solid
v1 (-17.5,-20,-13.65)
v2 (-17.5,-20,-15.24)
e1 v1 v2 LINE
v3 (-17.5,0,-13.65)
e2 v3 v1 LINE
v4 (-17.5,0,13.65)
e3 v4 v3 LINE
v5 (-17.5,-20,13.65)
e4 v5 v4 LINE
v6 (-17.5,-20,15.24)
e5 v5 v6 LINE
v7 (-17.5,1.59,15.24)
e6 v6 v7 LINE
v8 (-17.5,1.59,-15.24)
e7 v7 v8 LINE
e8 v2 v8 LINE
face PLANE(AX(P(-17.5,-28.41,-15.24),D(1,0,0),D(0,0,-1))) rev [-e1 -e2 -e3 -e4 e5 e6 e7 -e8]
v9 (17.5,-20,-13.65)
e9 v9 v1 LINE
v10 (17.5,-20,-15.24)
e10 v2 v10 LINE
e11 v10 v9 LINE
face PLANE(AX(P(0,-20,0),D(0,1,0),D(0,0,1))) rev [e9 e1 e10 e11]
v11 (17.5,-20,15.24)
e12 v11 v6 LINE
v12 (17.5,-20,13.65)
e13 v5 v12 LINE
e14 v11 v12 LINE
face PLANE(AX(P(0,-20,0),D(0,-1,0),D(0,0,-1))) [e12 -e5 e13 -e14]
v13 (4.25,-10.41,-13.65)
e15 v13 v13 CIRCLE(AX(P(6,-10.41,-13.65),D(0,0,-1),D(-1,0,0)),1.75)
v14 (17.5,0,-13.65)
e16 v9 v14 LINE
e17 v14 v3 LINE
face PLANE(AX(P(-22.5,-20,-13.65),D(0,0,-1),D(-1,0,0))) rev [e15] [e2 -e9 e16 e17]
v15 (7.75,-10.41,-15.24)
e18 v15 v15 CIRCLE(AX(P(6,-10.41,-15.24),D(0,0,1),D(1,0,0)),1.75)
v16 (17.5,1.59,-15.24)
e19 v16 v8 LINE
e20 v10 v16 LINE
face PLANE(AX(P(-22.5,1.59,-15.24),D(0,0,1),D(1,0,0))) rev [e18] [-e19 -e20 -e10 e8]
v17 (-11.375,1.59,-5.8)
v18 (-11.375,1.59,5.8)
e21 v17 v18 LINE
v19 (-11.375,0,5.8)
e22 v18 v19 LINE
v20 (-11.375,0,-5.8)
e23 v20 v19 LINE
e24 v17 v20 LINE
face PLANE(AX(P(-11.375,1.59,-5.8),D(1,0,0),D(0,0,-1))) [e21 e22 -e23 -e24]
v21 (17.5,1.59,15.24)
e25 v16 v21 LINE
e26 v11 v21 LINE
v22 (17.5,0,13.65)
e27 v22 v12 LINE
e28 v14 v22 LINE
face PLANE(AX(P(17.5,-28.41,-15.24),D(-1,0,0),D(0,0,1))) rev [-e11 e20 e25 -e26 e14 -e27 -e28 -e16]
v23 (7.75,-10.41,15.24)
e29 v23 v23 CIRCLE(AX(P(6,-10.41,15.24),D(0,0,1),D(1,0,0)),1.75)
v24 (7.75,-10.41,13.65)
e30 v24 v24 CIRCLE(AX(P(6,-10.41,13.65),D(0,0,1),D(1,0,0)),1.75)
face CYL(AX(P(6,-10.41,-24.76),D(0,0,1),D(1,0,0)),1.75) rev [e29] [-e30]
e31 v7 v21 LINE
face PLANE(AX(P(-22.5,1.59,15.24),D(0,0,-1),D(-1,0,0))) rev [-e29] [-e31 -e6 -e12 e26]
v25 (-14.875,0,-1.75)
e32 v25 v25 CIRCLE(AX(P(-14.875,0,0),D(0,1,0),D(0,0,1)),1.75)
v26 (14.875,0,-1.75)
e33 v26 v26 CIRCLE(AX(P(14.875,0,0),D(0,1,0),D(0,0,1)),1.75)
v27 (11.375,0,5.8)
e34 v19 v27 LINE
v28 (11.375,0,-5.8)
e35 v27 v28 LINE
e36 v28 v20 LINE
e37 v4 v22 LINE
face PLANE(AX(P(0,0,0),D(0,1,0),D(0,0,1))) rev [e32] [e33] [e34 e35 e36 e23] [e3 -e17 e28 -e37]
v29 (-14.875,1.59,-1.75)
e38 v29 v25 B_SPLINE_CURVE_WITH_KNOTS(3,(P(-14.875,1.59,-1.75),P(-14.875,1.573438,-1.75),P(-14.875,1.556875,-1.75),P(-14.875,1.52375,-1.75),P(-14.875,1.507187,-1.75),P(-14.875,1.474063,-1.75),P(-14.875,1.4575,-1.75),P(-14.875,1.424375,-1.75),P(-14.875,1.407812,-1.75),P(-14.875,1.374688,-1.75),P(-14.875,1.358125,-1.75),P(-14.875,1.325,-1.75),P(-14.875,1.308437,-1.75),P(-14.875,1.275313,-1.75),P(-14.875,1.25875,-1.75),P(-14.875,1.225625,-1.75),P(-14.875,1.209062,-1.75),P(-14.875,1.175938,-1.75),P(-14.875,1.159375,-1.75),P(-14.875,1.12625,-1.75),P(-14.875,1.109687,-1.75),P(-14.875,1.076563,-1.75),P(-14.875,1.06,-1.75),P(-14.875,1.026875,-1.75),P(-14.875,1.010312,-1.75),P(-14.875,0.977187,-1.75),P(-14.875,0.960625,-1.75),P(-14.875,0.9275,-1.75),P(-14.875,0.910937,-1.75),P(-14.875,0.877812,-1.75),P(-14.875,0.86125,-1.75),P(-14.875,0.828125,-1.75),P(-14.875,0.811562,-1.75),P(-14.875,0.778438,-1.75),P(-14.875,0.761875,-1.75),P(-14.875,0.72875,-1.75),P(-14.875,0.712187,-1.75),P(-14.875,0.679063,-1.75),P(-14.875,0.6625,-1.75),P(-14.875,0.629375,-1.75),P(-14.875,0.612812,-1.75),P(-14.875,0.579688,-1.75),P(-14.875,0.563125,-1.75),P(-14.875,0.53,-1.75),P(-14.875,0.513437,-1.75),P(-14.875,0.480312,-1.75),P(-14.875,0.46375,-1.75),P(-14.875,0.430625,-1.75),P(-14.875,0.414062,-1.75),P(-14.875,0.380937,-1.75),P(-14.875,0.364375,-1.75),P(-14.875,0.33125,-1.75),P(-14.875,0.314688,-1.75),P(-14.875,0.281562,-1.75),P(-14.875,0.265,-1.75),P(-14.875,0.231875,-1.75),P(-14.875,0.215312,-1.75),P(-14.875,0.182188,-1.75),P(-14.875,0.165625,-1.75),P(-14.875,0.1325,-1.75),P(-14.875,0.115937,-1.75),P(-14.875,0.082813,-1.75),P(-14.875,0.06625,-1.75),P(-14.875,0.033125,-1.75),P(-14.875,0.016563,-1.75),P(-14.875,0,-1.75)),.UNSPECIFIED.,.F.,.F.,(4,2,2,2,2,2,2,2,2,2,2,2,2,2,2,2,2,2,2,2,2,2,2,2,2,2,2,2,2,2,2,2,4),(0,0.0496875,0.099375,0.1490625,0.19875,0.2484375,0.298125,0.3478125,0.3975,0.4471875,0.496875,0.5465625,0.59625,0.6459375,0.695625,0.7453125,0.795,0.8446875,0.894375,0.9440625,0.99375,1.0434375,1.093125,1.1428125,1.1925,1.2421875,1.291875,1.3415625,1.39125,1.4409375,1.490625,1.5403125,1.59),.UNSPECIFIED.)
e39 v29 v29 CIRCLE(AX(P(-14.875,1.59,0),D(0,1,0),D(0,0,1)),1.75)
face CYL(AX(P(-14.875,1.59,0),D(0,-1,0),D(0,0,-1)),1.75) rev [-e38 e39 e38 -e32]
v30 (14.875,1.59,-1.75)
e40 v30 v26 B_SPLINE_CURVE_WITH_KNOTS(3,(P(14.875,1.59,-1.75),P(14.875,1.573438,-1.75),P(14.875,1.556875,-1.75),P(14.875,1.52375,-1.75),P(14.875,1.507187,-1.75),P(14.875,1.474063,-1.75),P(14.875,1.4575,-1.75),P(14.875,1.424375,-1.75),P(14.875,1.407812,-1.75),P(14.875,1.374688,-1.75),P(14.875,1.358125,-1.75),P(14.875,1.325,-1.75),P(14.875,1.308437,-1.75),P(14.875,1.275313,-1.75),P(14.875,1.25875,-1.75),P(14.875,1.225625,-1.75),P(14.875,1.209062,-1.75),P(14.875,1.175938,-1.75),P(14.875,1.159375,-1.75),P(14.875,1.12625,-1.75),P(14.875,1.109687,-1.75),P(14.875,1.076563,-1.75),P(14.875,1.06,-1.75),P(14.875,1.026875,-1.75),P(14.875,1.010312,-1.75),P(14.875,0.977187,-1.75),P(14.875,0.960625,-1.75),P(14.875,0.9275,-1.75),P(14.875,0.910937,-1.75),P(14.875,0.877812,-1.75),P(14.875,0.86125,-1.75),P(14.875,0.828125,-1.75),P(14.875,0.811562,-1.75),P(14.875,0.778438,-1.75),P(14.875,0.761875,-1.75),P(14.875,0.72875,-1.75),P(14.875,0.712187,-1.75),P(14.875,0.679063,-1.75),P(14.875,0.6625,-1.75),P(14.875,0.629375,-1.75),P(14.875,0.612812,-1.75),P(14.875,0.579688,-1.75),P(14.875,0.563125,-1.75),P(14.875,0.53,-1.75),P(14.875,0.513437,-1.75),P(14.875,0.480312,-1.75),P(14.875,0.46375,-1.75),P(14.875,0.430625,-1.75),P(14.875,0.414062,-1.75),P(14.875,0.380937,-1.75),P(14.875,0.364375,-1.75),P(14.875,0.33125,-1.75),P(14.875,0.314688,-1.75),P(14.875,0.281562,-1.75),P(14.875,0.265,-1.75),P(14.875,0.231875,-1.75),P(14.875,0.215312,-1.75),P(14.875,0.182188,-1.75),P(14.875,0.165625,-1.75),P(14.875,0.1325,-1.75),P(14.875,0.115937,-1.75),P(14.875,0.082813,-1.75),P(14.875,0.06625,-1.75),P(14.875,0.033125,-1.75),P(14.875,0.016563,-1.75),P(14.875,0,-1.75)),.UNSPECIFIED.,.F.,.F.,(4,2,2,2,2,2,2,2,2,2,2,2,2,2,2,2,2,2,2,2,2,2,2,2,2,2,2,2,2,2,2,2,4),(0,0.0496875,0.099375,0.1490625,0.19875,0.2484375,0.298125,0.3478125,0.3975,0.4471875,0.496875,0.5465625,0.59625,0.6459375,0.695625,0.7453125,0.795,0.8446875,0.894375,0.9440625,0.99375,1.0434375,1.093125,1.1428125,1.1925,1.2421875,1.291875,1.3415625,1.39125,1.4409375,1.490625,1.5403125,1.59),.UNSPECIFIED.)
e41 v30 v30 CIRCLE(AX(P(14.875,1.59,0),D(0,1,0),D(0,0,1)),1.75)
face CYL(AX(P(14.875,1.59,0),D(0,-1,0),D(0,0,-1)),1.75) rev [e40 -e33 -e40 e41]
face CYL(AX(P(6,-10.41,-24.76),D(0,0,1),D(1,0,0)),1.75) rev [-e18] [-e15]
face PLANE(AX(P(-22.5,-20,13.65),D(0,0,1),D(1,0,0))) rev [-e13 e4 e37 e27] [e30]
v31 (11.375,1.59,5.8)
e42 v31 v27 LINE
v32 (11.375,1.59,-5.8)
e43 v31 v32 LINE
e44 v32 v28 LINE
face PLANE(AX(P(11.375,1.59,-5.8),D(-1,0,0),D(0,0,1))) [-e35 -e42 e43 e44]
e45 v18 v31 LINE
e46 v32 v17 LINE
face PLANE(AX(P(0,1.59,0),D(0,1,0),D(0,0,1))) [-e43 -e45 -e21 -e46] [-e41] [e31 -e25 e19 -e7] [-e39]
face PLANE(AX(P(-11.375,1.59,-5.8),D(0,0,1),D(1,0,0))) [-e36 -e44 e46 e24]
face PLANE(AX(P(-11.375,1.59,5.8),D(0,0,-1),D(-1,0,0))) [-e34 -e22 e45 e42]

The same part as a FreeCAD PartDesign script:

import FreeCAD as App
import Part
import Sketcher
from FreeCAD import Vector


def add_polygon(sketch, points):
    """Adds a closed chain of lines whose ends are joined by coincident constraints."""
    first, n = sketch.GeometryCount, len(points)
    for a, b in zip(points, points[1:] + points[:1]):
        sketch.addGeometry(Part.LineSegment(App.Vector(*a, 0), App.Vector(*b, 0)), False)
    for i in range(n):
        sketch.addConstraint(Sketcher.Constraint("Coincident", first + i, 2, first + (i + 1) % n, 1))

doc = App.newDocument("Part")
params = doc.addObject("Spreadsheet::Sheet", "Params")
for row, (alias, value) in enumerate([
    ("sketch1_diameter", "3.5 mm"),
    ("sketch1_width", "45 mm"),
    ("sketch1_height", "11.6 mm"),
    ("sketch1_width2", "22.75 mm"),
    ("sketch1_height2", "30.48 mm"),
    ("pad1_length", "1.59 mm"),
    ("sketch2_width", "45 mm"),
    ("sketch2_height", "1.59 mm"),
    ("pad2_length", "20 mm"),
    ("sketch3_diameter", "3.5 mm"),
    ("pocket1_length", "40 mm"),
    ("sketch4_width", "5 mm"),
    ("sketch4_height", "30.48 mm"),
    ("pocket2_length", "30 mm"),
], start=1):
    params.set(f"A{row}", alias)
    params.set(f"B{row}", "=" + value)
    params.setAlias(f"B{row}", alias)

body = doc.addObject("PartDesign::Body", "Body")

# Sketch on XZ plane
sketch1 = doc.addObject("Sketcher::SketchObject", "Sketch")
body.addObject(sketch1)
sketch1.AttachmentSupport = (doc.XZ_Plane, [""])
sketch1.MapMode = "FlatFace"
add_polygon(sketch1, [(-22.5, -15.2), (-22.5, 15.2), (22.5, 15.2), (22.5, -15.2)])  # lines 0-3
sketch1.addGeometry(Part.Circle(Vector(-14.9, 0, 0), Vector(0, 0, 1), 1.8), False)  # 4
add_polygon(sketch1, [(11.4, 5.8), (-11.4, 5.8), (-11.4, -5.8), (11.4, -5.8)])  # lines 5-8
sketch1.addGeometry(Part.Circle(Vector(14.9, 0, 0), Vector(0, 0, 1), 1.8), False)  # 9
sketch1.addConstraint(Sketcher.Constraint("Vertical", 0))
sketch1.addConstraint(Sketcher.Constraint("Horizontal", 1))
sketch1.addConstraint(Sketcher.Constraint("Vertical", 2))
sketch1.addConstraint(Sketcher.Constraint("Horizontal", 3))
sketch1.addConstraint(Sketcher.Constraint("Horizontal", 5))
sketch1.addConstraint(Sketcher.Constraint("Vertical", 6))
sketch1.addConstraint(Sketcher.Constraint("Horizontal", 7))
sketch1.addConstraint(Sketcher.Constraint("Vertical", 8))
sketch1.addConstraint(Sketcher.Constraint("Equal", 4, 9))
sketch1.addConstraint(Sketcher.Constraint("Symmetric", 4, 3, 9, 3, -1, 1))
sketch1.addConstraint(Sketcher.Constraint("Symmetric", 0, 2, 2, 2, -1, 1))
sketch1.addConstraint(Sketcher.Constraint("Symmetric", 5, 2, 7, 2, -1, 1))
sketch1.addConstraint(Sketcher.Constraint("PointOnObject", 4, 3, -1))
sketch1.addConstraint(Sketcher.Constraint("Diameter", 4, 3.5))
sketch1.addConstraint(Sketcher.Constraint("DistanceX", 1, 1, 1, 2, 45.0))
sketch1.addConstraint(Sketcher.Constraint("DistanceY", 6, 2, 6, 1, 11.6))
sketch1.addConstraint(Sketcher.Constraint("DistanceX", 5, 2, 5, 1, 22.75))
sketch1.addConstraint(Sketcher.Constraint("DistanceY", 0, 1, 0, 2, 30.48))
sketch1.addConstraint(Sketcher.Constraint("DistanceX", 4, 3, 5, 2, 3.5))
sketch1.setExpression("Constraints[21]", "Params.sketch1_diameter")
sketch1.setExpression("Constraints[22]", "Params.sketch1_width")
sketch1.setExpression("Constraints[23]", "Params.sketch1_height")
sketch1.setExpression("Constraints[24]", "Params.sketch1_width2")
sketch1.setExpression("Constraints[25]", "Params.sketch1_height2")
pad1 = doc.addObject("PartDesign::Pad", "Pad")
body.addObject(pad1)
pad1.Profile = sketch1
pad1.setExpression("Length", "Params.pad1_length")
pad1.Reversed = True

# Sketch on XZ plane
sketch2 = doc.addObject("Sketcher::SketchObject", "Sketch001")
body.addObject(sketch2)
sketch2.AttachmentSupport = (doc.XZ_Plane, [""])
sketch2.MapMode = "FlatFace"
add_polygon(sketch2, [(22.5, 13.7), (22.5, 15.2), (-22.5, 15.2), (-22.5, 13.7)])  # lines 0-3
add_polygon(sketch2, [(22.5, -15.2), (22.5, -13.7), (-22.5, -13.7), (-22.5, -15.2)])  # lines 4-7
sketch2.addConstraint(Sketcher.Constraint("Vertical", 0))
sketch2.addConstraint(Sketcher.Constraint("Horizontal", 1))
sketch2.addConstraint(Sketcher.Constraint("Vertical", 2))
sketch2.addConstraint(Sketcher.Constraint("Horizontal", 3))
sketch2.addConstraint(Sketcher.Constraint("Vertical", 4))
sketch2.addConstraint(Sketcher.Constraint("Horizontal", 5))
sketch2.addConstraint(Sketcher.Constraint("Vertical", 6))
sketch2.addConstraint(Sketcher.Constraint("Horizontal", 7))
sketch2.addConstraint(Sketcher.Constraint("Symmetric", 2, 2, 4, 2, -1, 1))
sketch2.addConstraint(Sketcher.Constraint("Symmetric", 0, 2, 6, 2, -1, 1))
sketch2.addConstraint(Sketcher.Constraint("Vertical", 3, 2, 4, 2))
sketch2.addConstraint(Sketcher.Constraint("DistanceX", 1, 2, 1, 1, 45.0))
sketch2.addConstraint(Sketcher.Constraint("DistanceY", 0, 1, 0, 2, 1.59))
sketch2.addConstraint(Sketcher.Constraint("DistanceY", 4, 2, 3, 2, 27.3))
sketch2.setExpression("Constraints[19]", "Params.sketch2_width")
sketch2.setExpression("Constraints[20]", "Params.sketch2_height")
pad2 = doc.addObject("PartDesign::Pad", "Pad001")
body.addObject(pad2)
pad2.Profile = sketch2
pad2.setExpression("Length", "Params.pad2_length")

# Sketch on XY plane
sketch3 = doc.addObject("Sketcher::SketchObject", "Sketch002")
body.addObject(sketch3)
sketch3.AttachmentSupport = (doc.XY_Plane, [""])
sketch3.MapMode = "FlatFace"
sketch3.AttachmentOffset = App.Placement(Vector(0, 0, 15.24), App.Rotation())
sketch3.addGeometry(Part.Circle(Vector(6, -10.4, 0), Vector(0, 0, 1), 1.8), False)
sketch3.addConstraint(Sketcher.Constraint("Diameter", 0, 3.5))
sketch3.addConstraint(Sketcher.Constraint("DistanceX", -1, 1, 0, 3, 6.0))
sketch3.addConstraint(Sketcher.Constraint("DistanceY", 0, 3, -1, 1, 10.41))
sketch3.setExpression("Constraints[0]", "Params.sketch3_diameter")
pocket1 = doc.addObject("PartDesign::Pocket", "Pocket")
body.addObject(pocket1)
pocket1.Profile = sketch3
pocket1.setExpression("Length", "Params.pocket1_length")

# Sketch on XZ plane
sketch4 = doc.addObject("Sketcher::SketchObject", "Sketch003")
body.addObject(sketch4)
sketch4.AttachmentSupport = (doc.XZ_Plane, [""])
sketch4.MapMode = "FlatFace"
sketch4.AttachmentOffset = App.Placement(Vector(0, 0, -1.59), App.Rotation())
add_polygon(sketch4, [(-22, -15), (-22, 15), (-18, 15), (-18, -15)])  # lines 0-3
add_polygon(sketch4, [(18, -15), (18, 15), (22, 15), (22, -15)])  # lines 4-7
sketch4.addConstraint(Sketcher.Constraint("Vertical", 0))
sketch4.addConstraint(Sketcher.Constraint("Horizontal", 1))
sketch4.addConstraint(Sketcher.Constraint("Vertical", 2))
sketch4.addConstraint(Sketcher.Constraint("Horizontal", 3))
sketch4.addConstraint(Sketcher.Constraint("Vertical", 4))
sketch4.addConstraint(Sketcher.Constraint("Horizontal", 5))
sketch4.addConstraint(Sketcher.Constraint("Vertical", 6))
sketch4.addConstraint(Sketcher.Constraint("Horizontal", 7))
sketch4.addConstraint(Sketcher.Constraint("Symmetric", 2, 2, 4, 2, -1, 1))
sketch4.addConstraint(Sketcher.Constraint("Symmetric", 0, 2, 6, 2, -1, 1))
sketch4.addConstraint(Sketcher.Constraint("Horizontal", 1, 2, 4, 2))
sketch4.addConstraint(Sketcher.Constraint("DistanceX", 1, 1, 1, 2, 5.0))
sketch4.addConstraint(Sketcher.Constraint("DistanceX", 1, 2, 4, 2, 35.0))
sketch4.addConstraint(Sketcher.Constraint("DistanceY", 0, 1, 0, 2, 30.48))
sketch4.setExpression("Constraints[19]", "Params.sketch4_width")
sketch4.setExpression("Constraints[21]", "Params.sketch4_height")
pocket2 = doc.addObject("PartDesign::Pocket", "Pocket001")
body.addObject(pocket2)
pocket2.Profile = sketch4
pocket2.setExpression("Length", "Params.pocket2_length")
pocket2.Reversed = True

doc.recompute()
